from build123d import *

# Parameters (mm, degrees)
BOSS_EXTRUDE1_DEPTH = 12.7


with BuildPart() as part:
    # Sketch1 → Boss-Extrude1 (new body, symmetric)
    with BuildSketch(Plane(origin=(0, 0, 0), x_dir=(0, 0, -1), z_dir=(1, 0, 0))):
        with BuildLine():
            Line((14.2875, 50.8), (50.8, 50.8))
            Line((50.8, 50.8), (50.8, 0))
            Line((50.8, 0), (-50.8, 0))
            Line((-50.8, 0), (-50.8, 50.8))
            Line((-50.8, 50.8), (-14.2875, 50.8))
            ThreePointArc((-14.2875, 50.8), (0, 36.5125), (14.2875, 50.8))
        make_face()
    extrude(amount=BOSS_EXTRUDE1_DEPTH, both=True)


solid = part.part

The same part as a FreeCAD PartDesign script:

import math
import FreeCAD as App
import Part
import Sketcher
Q = App.Units.Quantity

doc = App.newDocument("Part")
params = doc.addObject("Spreadsheet::Sheet", "Params")
for row, (alias, value) in enumerate([
    ("sketch1_width", "2 in"),
    ("sketch1_height", "4 in"),
    ("sketch1_radius", "0.5625 in"),
    ("pad1_length", "1 in"),
], start=1):
    params.set(f"A{row}", alias)
    params.set(f"B{row}", "=" + value)
    params.setAlias(f"B{row}", alias)

body = doc.addObject("PartDesign::Body", "Body")

# Sketch on YZ plane
sketch1 = doc.addObject("Sketcher::SketchObject", "Sketch")
body.addObject(sketch1)
sketch1.AttachmentSupport = (doc.YZ_Plane, [""])
sketch1.MapMode = "FlatFace"
sketch1.addGeometry([
    Part.LineSegment(App.Vector(51, -51, 0), App.Vector(51, -14, 0)),  # 0
    Part.ArcOfCircle(Part.Circle(App.Vector(51, 0, 0), App.Vector(0, 0, 1), 14), math.radians(90), math.radians(270)),  # 1
    Part.LineSegment(App.Vector(51, 14, 0), App.Vector(51, 51, 0)),  # 2
    Part.LineSegment(App.Vector(51, 51, 0), App.Vector(0, 51, 0)),  # 3
    Part.LineSegment(App.Vector(0, 51, 0), App.Vector(0, -51, 0)),  # 4
    Part.LineSegment(App.Vector(0, -51, 0), App.Vector(51, -51, 0)),  # 5
], False)
sketch1.addConstraint([
    Sketcher.Constraint("Coincident", 0, 2, 1, 2),
    Sketcher.Constraint("Coincident", 1, 1, 2, 1),
    Sketcher.Constraint("Coincident", 2, 2, 3, 1),
    Sketcher.Constraint("Coincident", 3, 2, 4, 1),
    Sketcher.Constraint("Coincident", 4, 2, 5, 1),
    Sketcher.Constraint("Coincident", 5, 2, 0, 1),
    Sketcher.Constraint("Vertical", 0),
    Sketcher.Constraint("Vertical", 2),
    Sketcher.Constraint("Horizontal", 3),
    Sketcher.Constraint("Vertical", 4),
    Sketcher.Constraint("Horizontal", 5),
    Sketcher.Constraint("Symmetric", 3, 2, 4, 2, -1, 1),
    Sketcher.Constraint("Symmetric", 0, 2, 1, 1, -1),
    Sketcher.Constraint("Vertical", 1, 3, 0, 2),
    Sketcher.Constraint("DistanceX", 3, 2, 3, 1, Q("2 in")),
    Sketcher.Constraint("DistanceY", 4, 2, 4, 1, Q("4 in")),
    Sketcher.Constraint("Radius", 1, Q("0.5625 in")),
])
sketch1.setExpression("Constraints[14]", "Params.sketch1_width")
sketch1.setExpression("Constraints[15]", "Params.sketch1_height")
sketch1.setExpression("Constraints[16]", "Params.sketch1_radius")
pad1 = doc.addObject("PartDesign::Pad", "Pad")
body.addObject(pad1)
pad1.Profile = sketch1
pad1.setExpression("Length", "Params.pad1_length")
pad1.Midplane = True

doc.recompute()
